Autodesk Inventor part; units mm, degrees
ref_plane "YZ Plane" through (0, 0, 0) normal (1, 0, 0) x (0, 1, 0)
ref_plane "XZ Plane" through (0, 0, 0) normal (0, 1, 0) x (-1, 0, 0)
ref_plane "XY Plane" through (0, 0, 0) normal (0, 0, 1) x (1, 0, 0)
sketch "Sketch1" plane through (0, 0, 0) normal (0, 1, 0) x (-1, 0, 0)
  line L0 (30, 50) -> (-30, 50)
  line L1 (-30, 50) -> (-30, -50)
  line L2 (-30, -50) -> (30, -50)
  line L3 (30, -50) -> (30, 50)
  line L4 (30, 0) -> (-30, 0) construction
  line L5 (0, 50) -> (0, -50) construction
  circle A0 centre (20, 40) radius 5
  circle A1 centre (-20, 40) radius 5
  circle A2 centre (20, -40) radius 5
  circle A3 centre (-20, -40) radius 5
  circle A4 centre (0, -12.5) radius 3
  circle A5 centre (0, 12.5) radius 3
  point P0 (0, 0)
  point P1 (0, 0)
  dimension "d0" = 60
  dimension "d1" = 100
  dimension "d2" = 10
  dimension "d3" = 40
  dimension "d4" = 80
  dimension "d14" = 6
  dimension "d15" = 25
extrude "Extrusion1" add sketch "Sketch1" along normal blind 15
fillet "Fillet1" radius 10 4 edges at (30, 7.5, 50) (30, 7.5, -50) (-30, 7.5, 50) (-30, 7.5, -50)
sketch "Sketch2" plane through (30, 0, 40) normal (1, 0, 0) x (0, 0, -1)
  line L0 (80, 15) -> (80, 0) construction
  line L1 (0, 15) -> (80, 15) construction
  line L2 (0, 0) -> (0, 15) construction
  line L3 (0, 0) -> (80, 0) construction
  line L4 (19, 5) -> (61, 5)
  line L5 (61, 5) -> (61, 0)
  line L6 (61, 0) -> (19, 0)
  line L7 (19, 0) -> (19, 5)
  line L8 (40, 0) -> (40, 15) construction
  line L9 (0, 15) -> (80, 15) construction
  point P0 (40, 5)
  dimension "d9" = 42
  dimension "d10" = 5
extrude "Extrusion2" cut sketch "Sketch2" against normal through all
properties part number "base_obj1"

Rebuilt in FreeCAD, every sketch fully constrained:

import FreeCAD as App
import Part
import Sketcher
Q = App.Units.Quantity


def edges_at(feature, points):
    """Names of the edges that pass closest to the given points."""
    edges = feature.Shape.Edges
    near = lambda p: min(range(len(edges)), key=lambda i: edges[i].distToShape(Part.Vertex(*p))[0])
    return sorted({f"Edge{near(p) + 1}" for p in points})


def add_polygon(sketch, points):
    """Adds a closed chain of lines whose ends are joined by coincident constraints."""
    first, n = sketch.GeometryCount, len(points)
    for a, b in zip(points, points[1:] + points[:1]):
        sketch.addGeometry(Part.LineSegment(App.Vector(*a, 0), App.Vector(*b, 0)), False)
    for i in range(n):
        sketch.addConstraint(Sketcher.Constraint("Coincident", first + i, 2, first + (i + 1) % n, 1))

doc = App.newDocument("Part")
body = doc.addObject("PartDesign::Body", "Body")

# Sketch on XZ plane
sketch1 = body.newObject("Sketcher::SketchObject", "Sketch")
sketch1.AttachmentSupport = (doc.getObject("XZ_Plane"), [""])
sketch1.MapMode = "FlatFace"
add_polygon(sketch1, [(-30, -50), (-30, 50), (30, 50), (30, -50)])  # lines 0-3
sketch1.addGeometry(Part.Circle(App.Vector(20, -40, 0), App.Vector(0, 0, 1), 5), False)  # 4
sketch1.addGeometry(Part.Circle(App.Vector(-20, -40, 0), App.Vector(0, 0, 1), 5), False)  # 5
sketch1.addGeometry(Part.Circle(App.Vector(0, -12.5, 0), App.Vector(0, 0, 1), 3), False)  # 6
sketch1.addGeometry(Part.Circle(App.Vector(20, 40, 0), App.Vector(0, 0, 1), 5), False)  # 7
sketch1.addGeometry(Part.Circle(App.Vector(0, 12.5, 0), App.Vector(0, 0, 1), 3), False)  # 8
sketch1.addGeometry(Part.Circle(App.Vector(-20, 40, 0), App.Vector(0, 0, 1), 5), False)  # 9
sketch1.addConstraint([
    Sketcher.Constraint("Vertical", 0),
    Sketcher.Constraint("Horizontal", 1),
    Sketcher.Constraint("Vertical", 2),
    Sketcher.Constraint("Horizontal", 3),
    Sketcher.Constraint("Equal", 4, 5),
    Sketcher.Constraint("Equal", 5, 7),
    Sketcher.Constraint("Equal", 6, 8),
    Sketcher.Constraint("Equal", 7, 9),
    Sketcher.Constraint("Symmetric", 5, 3, 7, 3, -1, 1),
    Sketcher.Constraint("Symmetric", 6, 3, 8, 3, -1, 1),
    Sketcher.Constraint("Symmetric", 4, 3, 9, 3, -1, 1),
    Sketcher.Constraint("Symmetric", 0, 2, 2, 2, -1, 1),
    Sketcher.Constraint("Symmetric", 4, 3, 5, 3, -2),
    Sketcher.Constraint("PointOnObject", 6, 3, -2),
    Sketcher.Constraint("Diameter", 4, Q("10 mm")),
    Sketcher.Constraint("Diameter", 6, Q("6 mm")),
    Sketcher.Constraint("DistanceX", 1, 1, 1, 2, Q("60 mm")),
    Sketcher.Constraint("DistanceY", 0, 1, 0, 2, Q("100 mm")),
    Sketcher.Constraint("DistanceY", 4, 3, -1, 1, Q("40 mm")),
    Sketcher.Constraint("DistanceX", 5, 3, 4, 3, Q("40 mm")),
    Sketcher.Constraint("DistanceY", 6, 3, 8, 3, Q("25 mm")),
])
pad1 = body.newObject("PartDesign::Pad", "Pad")
pad1.Profile = sketch1
pad1.Length = 15
pad1.Reversed = True
doc.recompute()

fillet = body.newObject("PartDesign::Fillet", "Fillet")
fillet.Base = (pad1, edges_at(pad1, [
    (30, 7.5, 50),
    (30, 7.5, -50),
    (-30, 7.5, 50),
    (-30, 7.5, -50),
]))
fillet.Radius = 10

# Sketch on YZ plane
sketch2 = body.newObject("Sketcher::SketchObject", "Sketch001")
sketch2.AttachmentSupport = (doc.getObject("YZ_Plane"), [""])
sketch2.MapMode = "FlatFace"
sketch2.AttachmentOffset = App.Placement(App.Vector(0, 0, 30), App.Rotation())
add_polygon(sketch2, [(5, -21), (5, 21), (0, 21), (0, -21)])  # lines 0-3
sketch2.addConstraint([
    Sketcher.Constraint("Vertical", 0),
    Sketcher.Constraint("Horizontal", 1),
    Sketcher.Constraint("Vertical", 2),
    Sketcher.Constraint("Horizontal", 3),
    Sketcher.Constraint("Symmetric", 1, 2, 2, 2, -1, 1),
    Sketcher.Constraint("DistanceX", 1, 2, 1, 1, Q("5 mm")),
    Sketcher.Constraint("DistanceY", 0, 1, 0, 2, Q("42 mm")),
])
pocket1 = body.newObject("PartDesign::Pocket", "Pocket")
pocket1.Profile = sketch2
pocket1.Type = "ThroughAll"

doc.recompute()
